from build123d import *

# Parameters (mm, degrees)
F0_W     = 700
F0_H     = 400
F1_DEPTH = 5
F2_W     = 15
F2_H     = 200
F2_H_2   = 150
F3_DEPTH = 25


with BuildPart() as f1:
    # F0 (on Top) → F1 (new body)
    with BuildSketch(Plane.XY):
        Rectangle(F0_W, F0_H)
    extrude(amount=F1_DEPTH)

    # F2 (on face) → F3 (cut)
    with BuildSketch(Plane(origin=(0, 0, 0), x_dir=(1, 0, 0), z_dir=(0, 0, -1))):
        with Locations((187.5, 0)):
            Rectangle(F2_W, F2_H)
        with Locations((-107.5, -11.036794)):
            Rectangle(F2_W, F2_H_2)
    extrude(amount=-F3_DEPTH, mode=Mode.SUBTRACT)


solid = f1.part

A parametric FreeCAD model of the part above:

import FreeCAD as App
import Part
import Sketcher

V = App.Vector

doc = App.newDocument("Part")
body = doc.addObject("PartDesign::Body", "Body")

sketch1 = body.newObject("Sketcher::SketchObject", "Sketch")
sketch1.AttachmentSupport = (doc.getObject("XY_Plane"), [""])
sketch1.MapMode = "FlatFace"
sketch1.addGeometry([
    Part.LineSegment(V(-350, 200, 0), V(-350, -200, 0)),
    Part.LineSegment(V(-350, -200, 0), V(350, -200, 0)),
    Part.LineSegment(V(350, -200, 0), V(350, 200, 0)),
    Part.LineSegment(V(350, 200, 0), V(-350, 200, 0)),
], False)
sketch1.addConstraint([
    Sketcher.Constraint("Coincident", 0, 2, 1, 1),
    Sketcher.Constraint("Coincident", 1, 2, 2, 1),
    Sketcher.Constraint("Coincident", 2, 2, 3, 1),
    Sketcher.Constraint("Coincident", 3, 2, 0, 1),
    Sketcher.Constraint("Vertical", 0),
    Sketcher.Constraint("Horizontal", 1),
    Sketcher.Constraint("Vertical", 2),
    Sketcher.Constraint("Horizontal", 3),
    Sketcher.Constraint("Symmetric", 0, 2, 2, 2, -1, 1),
    Sketcher.Constraint("DistanceX", 1, 1, 1, 2, 700.0),
    Sketcher.Constraint("DistanceY", 0, 2, 0, 1, 400.0),
])
pad1 = body.newObject("PartDesign::Pad", "Pad")
pad1.Profile = sketch1
pad1.Length = 5

sketch2 = body.newObject("Sketcher::SketchObject", "Sketch001")
sketch2.AttachmentSupport = (doc.getObject("XY_Plane"), [""])
sketch2.MapMode = "FlatFace"
sketch2.addGeometry([
    Part.LineSegment(V(180, -100, 0), V(180, 100, 0)),
    Part.LineSegment(V(180, 100, 0), V(195, 100, 0)),
    Part.LineSegment(V(195, 100, 0), V(195, -100, 0)),
    Part.LineSegment(V(195, -100, 0), V(180, -100, 0)),
    Part.LineSegment(V(-115, -64, 0), V(-115, 86, 0)),
    Part.LineSegment(V(-115, 86, 0), V(-100, 86, 0)),
    Part.LineSegment(V(-100, 86, 0), V(-100, -64, 0)),
    Part.LineSegment(V(-100, -64, 0), V(-115, -64, 0)),
], False)
sketch2.addConstraint([
    Sketcher.Constraint("Coincident", 0, 2, 1, 1),
    Sketcher.Constraint("Coincident", 1, 2, 2, 1),
    Sketcher.Constraint("Coincident", 2, 2, 3, 1),
    Sketcher.Constraint("Coincident", 3, 2, 0, 1),
    Sketcher.Constraint("Coincident", 4, 2, 5, 1),
    Sketcher.Constraint("Coincident", 5, 2, 6, 1),
    Sketcher.Constraint("Coincident", 6, 2, 7, 1),
    Sketcher.Constraint("Coincident", 7, 2, 4, 1),
    Sketcher.Constraint("Vertical", 0),
    Sketcher.Constraint("Horizontal", 1),
    Sketcher.Constraint("Vertical", 2),
    Sketcher.Constraint("Horizontal", 3),
    Sketcher.Constraint("Vertical", 4),
    Sketcher.Constraint("Horizontal", 5),
    Sketcher.Constraint("Vertical", 6),
    Sketcher.Constraint("Horizontal", 7),
    Sketcher.Constraint("Equal", 3, 5),
    Sketcher.Constraint("DistanceX", 1, 1, 1, 2, 15.0),
    Sketcher.Constraint("DistanceY", 0, 1, 0, 2, 200.0),
    Sketcher.Constraint("DistanceY", 4, 1, 4, 2, 150.0),
    Sketcher.Constraint("DistanceX", -1, 1, 0, 2, 180.0),
    Sketcher.Constraint("DistanceY", -1, 1, 0, 2, 100.0),
    Sketcher.Constraint("DistanceX", 4, 2, -1, 1, 115.0),
    Sketcher.Constraint("DistanceY", -1, 1, 4, 2, 86.036794),
])
pocket1 = body.newObject("PartDesign::Pocket", "Pocket")
pocket1.Profile = sketch2
pocket1.Length = 25
pocket1.Reversed = True

doc.recompute()
